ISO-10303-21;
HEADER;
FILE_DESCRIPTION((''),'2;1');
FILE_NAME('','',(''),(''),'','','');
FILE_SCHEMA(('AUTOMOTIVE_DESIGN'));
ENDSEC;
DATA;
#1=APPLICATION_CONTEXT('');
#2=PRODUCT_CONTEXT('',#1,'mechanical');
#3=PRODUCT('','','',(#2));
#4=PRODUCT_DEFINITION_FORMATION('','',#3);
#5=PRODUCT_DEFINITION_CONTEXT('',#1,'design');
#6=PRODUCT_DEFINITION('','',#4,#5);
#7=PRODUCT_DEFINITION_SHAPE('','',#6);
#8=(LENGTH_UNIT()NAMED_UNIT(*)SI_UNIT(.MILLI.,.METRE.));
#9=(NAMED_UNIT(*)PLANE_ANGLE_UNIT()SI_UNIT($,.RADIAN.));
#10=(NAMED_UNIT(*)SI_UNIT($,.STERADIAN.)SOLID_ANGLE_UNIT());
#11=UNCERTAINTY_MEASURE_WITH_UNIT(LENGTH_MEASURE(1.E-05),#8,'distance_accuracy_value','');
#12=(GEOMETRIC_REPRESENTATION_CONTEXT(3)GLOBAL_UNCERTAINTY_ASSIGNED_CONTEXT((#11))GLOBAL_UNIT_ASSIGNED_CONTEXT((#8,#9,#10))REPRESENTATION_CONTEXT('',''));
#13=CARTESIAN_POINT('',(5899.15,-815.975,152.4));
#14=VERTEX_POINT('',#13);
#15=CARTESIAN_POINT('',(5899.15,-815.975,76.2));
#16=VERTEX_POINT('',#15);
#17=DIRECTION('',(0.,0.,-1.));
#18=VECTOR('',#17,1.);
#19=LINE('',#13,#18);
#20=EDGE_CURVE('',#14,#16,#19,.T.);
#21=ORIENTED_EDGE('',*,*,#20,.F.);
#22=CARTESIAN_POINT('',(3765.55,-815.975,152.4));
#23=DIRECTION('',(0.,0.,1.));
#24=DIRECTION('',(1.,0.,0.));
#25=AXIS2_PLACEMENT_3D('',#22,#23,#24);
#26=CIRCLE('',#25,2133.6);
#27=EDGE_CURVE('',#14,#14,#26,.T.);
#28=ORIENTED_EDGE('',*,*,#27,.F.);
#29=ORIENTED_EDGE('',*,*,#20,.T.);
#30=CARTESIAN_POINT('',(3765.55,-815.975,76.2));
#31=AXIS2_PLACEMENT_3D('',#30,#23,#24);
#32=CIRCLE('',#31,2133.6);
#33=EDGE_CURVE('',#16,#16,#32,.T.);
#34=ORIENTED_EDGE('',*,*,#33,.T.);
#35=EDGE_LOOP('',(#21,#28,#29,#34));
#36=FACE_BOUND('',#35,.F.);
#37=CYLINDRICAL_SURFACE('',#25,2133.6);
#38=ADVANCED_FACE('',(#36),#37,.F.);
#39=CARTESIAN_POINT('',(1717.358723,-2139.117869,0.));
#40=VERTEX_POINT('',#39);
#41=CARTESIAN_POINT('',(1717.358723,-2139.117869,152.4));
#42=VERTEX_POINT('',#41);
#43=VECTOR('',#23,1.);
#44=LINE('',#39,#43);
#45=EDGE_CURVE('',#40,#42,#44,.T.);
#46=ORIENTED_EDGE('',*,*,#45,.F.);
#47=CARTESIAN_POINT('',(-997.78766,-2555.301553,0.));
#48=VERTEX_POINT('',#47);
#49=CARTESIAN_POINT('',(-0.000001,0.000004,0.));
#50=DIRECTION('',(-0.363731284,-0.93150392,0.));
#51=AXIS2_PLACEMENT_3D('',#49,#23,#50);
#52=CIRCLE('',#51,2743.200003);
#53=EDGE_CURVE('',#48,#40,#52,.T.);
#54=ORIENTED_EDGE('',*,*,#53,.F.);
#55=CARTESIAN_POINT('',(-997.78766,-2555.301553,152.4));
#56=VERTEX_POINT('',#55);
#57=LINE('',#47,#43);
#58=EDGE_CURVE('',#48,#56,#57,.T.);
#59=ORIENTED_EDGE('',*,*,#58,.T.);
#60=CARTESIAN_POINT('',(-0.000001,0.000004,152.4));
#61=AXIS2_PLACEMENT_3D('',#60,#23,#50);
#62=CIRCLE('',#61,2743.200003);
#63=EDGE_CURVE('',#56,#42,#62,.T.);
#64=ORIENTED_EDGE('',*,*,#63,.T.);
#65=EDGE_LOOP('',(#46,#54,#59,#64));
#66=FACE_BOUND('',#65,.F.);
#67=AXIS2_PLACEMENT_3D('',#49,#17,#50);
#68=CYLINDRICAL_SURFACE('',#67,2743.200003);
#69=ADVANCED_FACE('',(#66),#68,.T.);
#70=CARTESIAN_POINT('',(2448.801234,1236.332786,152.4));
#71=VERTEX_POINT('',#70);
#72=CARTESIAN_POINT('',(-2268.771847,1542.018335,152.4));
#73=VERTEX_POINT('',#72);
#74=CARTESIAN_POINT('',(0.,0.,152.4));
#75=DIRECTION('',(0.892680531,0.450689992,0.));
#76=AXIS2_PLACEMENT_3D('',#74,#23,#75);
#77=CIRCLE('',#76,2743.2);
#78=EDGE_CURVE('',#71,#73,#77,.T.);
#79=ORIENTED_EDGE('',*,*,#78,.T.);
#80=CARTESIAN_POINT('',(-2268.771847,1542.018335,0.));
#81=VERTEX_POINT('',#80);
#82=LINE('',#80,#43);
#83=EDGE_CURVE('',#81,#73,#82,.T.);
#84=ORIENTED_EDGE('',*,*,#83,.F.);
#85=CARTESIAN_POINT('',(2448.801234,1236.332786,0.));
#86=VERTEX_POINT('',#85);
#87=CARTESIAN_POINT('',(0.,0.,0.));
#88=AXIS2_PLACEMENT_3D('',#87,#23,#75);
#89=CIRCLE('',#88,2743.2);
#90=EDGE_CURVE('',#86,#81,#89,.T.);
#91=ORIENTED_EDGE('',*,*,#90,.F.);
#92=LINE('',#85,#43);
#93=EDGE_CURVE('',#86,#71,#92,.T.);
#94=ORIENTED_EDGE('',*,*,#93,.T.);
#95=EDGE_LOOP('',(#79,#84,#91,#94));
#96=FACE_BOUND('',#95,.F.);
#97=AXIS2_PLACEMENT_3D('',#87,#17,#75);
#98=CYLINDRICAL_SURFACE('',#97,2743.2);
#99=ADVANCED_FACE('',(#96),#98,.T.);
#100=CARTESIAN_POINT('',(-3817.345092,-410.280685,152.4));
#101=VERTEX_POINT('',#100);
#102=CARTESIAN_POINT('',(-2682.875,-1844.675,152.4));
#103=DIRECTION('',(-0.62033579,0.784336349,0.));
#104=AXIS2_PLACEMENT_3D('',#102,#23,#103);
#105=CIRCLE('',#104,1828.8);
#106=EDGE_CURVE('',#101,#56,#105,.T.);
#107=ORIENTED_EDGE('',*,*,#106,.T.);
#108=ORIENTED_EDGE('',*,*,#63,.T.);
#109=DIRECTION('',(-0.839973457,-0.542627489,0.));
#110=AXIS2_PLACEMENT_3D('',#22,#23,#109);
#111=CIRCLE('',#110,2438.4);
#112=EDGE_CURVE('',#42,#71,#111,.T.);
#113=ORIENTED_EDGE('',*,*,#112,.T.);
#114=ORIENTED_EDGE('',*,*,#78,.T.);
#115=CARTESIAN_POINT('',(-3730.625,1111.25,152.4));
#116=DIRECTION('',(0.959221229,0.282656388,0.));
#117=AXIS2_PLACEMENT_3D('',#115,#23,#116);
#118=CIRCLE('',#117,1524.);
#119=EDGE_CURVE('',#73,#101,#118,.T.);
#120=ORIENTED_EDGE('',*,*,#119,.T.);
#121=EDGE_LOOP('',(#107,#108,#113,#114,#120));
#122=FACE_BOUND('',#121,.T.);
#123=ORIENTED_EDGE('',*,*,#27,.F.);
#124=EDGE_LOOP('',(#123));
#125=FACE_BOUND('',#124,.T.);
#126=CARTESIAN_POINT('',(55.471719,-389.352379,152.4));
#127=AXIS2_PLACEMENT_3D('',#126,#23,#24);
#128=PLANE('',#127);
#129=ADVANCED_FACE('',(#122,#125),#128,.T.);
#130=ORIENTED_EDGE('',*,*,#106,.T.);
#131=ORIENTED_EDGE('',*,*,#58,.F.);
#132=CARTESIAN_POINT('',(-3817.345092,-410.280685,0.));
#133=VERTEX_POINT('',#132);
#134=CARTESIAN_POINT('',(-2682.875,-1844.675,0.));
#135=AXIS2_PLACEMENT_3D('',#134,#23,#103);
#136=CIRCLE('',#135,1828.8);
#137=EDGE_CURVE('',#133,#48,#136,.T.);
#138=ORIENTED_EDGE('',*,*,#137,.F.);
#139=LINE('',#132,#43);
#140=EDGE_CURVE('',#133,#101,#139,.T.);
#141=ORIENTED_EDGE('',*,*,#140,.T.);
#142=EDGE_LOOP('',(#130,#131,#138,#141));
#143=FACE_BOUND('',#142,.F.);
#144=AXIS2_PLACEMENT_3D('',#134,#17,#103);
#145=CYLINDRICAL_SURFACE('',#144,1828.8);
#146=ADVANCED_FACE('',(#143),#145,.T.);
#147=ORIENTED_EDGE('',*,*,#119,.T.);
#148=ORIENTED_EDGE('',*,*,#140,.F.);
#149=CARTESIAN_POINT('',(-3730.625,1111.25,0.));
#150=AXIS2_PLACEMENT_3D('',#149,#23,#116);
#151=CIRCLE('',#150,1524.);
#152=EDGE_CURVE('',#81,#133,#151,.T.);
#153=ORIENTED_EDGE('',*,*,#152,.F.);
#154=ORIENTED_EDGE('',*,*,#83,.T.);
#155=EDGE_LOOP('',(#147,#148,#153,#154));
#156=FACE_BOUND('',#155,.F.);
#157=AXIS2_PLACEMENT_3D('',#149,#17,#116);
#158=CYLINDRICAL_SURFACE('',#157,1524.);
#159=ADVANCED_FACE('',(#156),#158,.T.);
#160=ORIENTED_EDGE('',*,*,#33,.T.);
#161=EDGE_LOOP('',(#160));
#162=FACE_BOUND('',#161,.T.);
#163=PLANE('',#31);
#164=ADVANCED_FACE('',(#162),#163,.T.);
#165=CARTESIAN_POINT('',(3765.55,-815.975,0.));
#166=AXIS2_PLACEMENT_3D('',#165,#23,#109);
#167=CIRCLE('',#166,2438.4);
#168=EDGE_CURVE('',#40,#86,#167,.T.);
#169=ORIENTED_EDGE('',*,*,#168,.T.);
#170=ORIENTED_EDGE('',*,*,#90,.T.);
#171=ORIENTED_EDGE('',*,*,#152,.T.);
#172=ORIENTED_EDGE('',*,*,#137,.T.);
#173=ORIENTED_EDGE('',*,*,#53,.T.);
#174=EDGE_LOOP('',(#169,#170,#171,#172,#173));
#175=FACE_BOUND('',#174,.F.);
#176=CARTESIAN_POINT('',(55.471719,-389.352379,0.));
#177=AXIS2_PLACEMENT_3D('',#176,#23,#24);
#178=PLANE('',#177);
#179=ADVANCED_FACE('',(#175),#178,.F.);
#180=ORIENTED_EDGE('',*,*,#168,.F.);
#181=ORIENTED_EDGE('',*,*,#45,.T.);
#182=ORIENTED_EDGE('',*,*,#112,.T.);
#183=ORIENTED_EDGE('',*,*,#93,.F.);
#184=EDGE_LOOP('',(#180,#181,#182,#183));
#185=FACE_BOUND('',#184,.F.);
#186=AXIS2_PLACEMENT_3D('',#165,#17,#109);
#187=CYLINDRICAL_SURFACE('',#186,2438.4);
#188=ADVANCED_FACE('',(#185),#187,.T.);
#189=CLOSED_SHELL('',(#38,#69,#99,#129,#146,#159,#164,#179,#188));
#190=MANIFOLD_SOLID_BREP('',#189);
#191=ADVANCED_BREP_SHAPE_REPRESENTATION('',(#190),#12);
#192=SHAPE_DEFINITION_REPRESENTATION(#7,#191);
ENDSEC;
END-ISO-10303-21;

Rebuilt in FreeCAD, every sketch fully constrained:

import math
import FreeCAD as App
import Part
import Sketcher
Q = App.Units.Quantity

doc = App.newDocument("Part")
body = doc.addObject("PartDesign::Body", "Body")

sketch1 = body.newObject("Sketcher::SketchObject", "Sketch")
sketch1.AttachmentSupport = (doc.getObject("XY_Plane"), [""])
sketch1.MapMode = "FlatFace"
sketch1.addGeometry([
    Part.ArcOfCircle(Part.Circle(App.Vector(-3731, 1111, 0), App.Vector(0, 0, 1), 1524), math.radians(16), math.radians(267)),
    Part.ArcOfCircle(Part.Circle(App.Vector(-2683, -1845, 0), App.Vector(0, 0, 1), 1829), math.radians(128), math.radians(337)),
    Part.ArcOfCircle(Part.Circle(App.Vector(0, 0, 0), App.Vector(0, 0, 1), 2743), math.radians(-111), math.radians(-51)),
    Part.ArcOfCircle(Part.Circle(App.Vector(3766, -816, 0), App.Vector(0, 0, 1), 2438), math.radians(-147), math.radians(123)),
    Part.ArcOfCircle(Part.Circle(App.Vector(0, 0, 0), App.Vector(0, 0, 1), 2743), math.radians(27), math.radians(146)),
], False)
sketch1.addConstraint([
    Sketcher.Constraint("Coincident", 0, 2, 1, 1),
    Sketcher.Constraint("Coincident", 1, 2, 2, 1),
    Sketcher.Constraint("Coincident", 2, 2, 3, 1),
    Sketcher.Constraint("Coincident", 3, 2, 4, 1),
    Sketcher.Constraint("Coincident", 4, 2, 0, 1),
    Sketcher.Constraint("Coincident", 2, 3, -1, 1),
    Sketcher.Constraint("Coincident", 4, 3, -1, 1),
    Sketcher.Constraint("Radius", 0, Q("60 in")),
    Sketcher.Constraint("Radius", 1, Q("72 in")),
    Sketcher.Constraint("Radius", 2, Q("108.0000001 in")),
    Sketcher.Constraint("Radius", 3, Q("96 in")),
    Sketcher.Constraint("Radius", 4, Q("108 in")),
    Sketcher.Constraint("DistanceY", 1, 3, 3, 3, Q("40.5 in")),
    Sketcher.Constraint("DistanceY", -1, 1, 0, 3, Q("43.75 in")),
    Sketcher.Constraint("DistanceX", -1, 1, 3, 3, Q("148.25 in")),
    Sketcher.Constraint("DistanceX", 0, 3, 1, 3, Q("41.25 in")),
    Sketcher.Constraint("DistanceX", 0, 3, -1, 1, Q("146.875 in")),
    Sketcher.Constraint("DistanceY", 1, 3, -1, 1, Q("72.625 in")),
])
pad1 = body.newObject("PartDesign::Pad", "Pad")
pad1.Profile = sketch1
pad1.Length = Q("6 in")

sketch2 = body.newObject("Sketcher::SketchObject", "Sketch001")
sketch2.AttachmentSupport = (doc.getObject("XY_Plane"), [""])
sketch2.MapMode = "FlatFace"
sketch2.AttachmentOffset = App.Placement(App.Vector(0, 0, 6 * 25.4), App.Rotation())
sketch2.addGeometry(Part.Circle(App.Vector(3766, -816, 0), App.Vector(0, 0, 1), 2134), False)
sketch2.addConstraint([
    Sketcher.Constraint("Diameter", 0, Q("168 in")),
    Sketcher.Constraint("DistanceX", -1, 1, 0, 3, Q("148.25 in")),
    Sketcher.Constraint("DistanceY", 0, 3, -1, 1, Q("32.125 in")),
])
pocket1 = body.newObject("PartDesign::Pocket", "Pocket")
pocket1.Profile = sketch2
pocket1.Length = Q("3 in")

doc.recompute()
